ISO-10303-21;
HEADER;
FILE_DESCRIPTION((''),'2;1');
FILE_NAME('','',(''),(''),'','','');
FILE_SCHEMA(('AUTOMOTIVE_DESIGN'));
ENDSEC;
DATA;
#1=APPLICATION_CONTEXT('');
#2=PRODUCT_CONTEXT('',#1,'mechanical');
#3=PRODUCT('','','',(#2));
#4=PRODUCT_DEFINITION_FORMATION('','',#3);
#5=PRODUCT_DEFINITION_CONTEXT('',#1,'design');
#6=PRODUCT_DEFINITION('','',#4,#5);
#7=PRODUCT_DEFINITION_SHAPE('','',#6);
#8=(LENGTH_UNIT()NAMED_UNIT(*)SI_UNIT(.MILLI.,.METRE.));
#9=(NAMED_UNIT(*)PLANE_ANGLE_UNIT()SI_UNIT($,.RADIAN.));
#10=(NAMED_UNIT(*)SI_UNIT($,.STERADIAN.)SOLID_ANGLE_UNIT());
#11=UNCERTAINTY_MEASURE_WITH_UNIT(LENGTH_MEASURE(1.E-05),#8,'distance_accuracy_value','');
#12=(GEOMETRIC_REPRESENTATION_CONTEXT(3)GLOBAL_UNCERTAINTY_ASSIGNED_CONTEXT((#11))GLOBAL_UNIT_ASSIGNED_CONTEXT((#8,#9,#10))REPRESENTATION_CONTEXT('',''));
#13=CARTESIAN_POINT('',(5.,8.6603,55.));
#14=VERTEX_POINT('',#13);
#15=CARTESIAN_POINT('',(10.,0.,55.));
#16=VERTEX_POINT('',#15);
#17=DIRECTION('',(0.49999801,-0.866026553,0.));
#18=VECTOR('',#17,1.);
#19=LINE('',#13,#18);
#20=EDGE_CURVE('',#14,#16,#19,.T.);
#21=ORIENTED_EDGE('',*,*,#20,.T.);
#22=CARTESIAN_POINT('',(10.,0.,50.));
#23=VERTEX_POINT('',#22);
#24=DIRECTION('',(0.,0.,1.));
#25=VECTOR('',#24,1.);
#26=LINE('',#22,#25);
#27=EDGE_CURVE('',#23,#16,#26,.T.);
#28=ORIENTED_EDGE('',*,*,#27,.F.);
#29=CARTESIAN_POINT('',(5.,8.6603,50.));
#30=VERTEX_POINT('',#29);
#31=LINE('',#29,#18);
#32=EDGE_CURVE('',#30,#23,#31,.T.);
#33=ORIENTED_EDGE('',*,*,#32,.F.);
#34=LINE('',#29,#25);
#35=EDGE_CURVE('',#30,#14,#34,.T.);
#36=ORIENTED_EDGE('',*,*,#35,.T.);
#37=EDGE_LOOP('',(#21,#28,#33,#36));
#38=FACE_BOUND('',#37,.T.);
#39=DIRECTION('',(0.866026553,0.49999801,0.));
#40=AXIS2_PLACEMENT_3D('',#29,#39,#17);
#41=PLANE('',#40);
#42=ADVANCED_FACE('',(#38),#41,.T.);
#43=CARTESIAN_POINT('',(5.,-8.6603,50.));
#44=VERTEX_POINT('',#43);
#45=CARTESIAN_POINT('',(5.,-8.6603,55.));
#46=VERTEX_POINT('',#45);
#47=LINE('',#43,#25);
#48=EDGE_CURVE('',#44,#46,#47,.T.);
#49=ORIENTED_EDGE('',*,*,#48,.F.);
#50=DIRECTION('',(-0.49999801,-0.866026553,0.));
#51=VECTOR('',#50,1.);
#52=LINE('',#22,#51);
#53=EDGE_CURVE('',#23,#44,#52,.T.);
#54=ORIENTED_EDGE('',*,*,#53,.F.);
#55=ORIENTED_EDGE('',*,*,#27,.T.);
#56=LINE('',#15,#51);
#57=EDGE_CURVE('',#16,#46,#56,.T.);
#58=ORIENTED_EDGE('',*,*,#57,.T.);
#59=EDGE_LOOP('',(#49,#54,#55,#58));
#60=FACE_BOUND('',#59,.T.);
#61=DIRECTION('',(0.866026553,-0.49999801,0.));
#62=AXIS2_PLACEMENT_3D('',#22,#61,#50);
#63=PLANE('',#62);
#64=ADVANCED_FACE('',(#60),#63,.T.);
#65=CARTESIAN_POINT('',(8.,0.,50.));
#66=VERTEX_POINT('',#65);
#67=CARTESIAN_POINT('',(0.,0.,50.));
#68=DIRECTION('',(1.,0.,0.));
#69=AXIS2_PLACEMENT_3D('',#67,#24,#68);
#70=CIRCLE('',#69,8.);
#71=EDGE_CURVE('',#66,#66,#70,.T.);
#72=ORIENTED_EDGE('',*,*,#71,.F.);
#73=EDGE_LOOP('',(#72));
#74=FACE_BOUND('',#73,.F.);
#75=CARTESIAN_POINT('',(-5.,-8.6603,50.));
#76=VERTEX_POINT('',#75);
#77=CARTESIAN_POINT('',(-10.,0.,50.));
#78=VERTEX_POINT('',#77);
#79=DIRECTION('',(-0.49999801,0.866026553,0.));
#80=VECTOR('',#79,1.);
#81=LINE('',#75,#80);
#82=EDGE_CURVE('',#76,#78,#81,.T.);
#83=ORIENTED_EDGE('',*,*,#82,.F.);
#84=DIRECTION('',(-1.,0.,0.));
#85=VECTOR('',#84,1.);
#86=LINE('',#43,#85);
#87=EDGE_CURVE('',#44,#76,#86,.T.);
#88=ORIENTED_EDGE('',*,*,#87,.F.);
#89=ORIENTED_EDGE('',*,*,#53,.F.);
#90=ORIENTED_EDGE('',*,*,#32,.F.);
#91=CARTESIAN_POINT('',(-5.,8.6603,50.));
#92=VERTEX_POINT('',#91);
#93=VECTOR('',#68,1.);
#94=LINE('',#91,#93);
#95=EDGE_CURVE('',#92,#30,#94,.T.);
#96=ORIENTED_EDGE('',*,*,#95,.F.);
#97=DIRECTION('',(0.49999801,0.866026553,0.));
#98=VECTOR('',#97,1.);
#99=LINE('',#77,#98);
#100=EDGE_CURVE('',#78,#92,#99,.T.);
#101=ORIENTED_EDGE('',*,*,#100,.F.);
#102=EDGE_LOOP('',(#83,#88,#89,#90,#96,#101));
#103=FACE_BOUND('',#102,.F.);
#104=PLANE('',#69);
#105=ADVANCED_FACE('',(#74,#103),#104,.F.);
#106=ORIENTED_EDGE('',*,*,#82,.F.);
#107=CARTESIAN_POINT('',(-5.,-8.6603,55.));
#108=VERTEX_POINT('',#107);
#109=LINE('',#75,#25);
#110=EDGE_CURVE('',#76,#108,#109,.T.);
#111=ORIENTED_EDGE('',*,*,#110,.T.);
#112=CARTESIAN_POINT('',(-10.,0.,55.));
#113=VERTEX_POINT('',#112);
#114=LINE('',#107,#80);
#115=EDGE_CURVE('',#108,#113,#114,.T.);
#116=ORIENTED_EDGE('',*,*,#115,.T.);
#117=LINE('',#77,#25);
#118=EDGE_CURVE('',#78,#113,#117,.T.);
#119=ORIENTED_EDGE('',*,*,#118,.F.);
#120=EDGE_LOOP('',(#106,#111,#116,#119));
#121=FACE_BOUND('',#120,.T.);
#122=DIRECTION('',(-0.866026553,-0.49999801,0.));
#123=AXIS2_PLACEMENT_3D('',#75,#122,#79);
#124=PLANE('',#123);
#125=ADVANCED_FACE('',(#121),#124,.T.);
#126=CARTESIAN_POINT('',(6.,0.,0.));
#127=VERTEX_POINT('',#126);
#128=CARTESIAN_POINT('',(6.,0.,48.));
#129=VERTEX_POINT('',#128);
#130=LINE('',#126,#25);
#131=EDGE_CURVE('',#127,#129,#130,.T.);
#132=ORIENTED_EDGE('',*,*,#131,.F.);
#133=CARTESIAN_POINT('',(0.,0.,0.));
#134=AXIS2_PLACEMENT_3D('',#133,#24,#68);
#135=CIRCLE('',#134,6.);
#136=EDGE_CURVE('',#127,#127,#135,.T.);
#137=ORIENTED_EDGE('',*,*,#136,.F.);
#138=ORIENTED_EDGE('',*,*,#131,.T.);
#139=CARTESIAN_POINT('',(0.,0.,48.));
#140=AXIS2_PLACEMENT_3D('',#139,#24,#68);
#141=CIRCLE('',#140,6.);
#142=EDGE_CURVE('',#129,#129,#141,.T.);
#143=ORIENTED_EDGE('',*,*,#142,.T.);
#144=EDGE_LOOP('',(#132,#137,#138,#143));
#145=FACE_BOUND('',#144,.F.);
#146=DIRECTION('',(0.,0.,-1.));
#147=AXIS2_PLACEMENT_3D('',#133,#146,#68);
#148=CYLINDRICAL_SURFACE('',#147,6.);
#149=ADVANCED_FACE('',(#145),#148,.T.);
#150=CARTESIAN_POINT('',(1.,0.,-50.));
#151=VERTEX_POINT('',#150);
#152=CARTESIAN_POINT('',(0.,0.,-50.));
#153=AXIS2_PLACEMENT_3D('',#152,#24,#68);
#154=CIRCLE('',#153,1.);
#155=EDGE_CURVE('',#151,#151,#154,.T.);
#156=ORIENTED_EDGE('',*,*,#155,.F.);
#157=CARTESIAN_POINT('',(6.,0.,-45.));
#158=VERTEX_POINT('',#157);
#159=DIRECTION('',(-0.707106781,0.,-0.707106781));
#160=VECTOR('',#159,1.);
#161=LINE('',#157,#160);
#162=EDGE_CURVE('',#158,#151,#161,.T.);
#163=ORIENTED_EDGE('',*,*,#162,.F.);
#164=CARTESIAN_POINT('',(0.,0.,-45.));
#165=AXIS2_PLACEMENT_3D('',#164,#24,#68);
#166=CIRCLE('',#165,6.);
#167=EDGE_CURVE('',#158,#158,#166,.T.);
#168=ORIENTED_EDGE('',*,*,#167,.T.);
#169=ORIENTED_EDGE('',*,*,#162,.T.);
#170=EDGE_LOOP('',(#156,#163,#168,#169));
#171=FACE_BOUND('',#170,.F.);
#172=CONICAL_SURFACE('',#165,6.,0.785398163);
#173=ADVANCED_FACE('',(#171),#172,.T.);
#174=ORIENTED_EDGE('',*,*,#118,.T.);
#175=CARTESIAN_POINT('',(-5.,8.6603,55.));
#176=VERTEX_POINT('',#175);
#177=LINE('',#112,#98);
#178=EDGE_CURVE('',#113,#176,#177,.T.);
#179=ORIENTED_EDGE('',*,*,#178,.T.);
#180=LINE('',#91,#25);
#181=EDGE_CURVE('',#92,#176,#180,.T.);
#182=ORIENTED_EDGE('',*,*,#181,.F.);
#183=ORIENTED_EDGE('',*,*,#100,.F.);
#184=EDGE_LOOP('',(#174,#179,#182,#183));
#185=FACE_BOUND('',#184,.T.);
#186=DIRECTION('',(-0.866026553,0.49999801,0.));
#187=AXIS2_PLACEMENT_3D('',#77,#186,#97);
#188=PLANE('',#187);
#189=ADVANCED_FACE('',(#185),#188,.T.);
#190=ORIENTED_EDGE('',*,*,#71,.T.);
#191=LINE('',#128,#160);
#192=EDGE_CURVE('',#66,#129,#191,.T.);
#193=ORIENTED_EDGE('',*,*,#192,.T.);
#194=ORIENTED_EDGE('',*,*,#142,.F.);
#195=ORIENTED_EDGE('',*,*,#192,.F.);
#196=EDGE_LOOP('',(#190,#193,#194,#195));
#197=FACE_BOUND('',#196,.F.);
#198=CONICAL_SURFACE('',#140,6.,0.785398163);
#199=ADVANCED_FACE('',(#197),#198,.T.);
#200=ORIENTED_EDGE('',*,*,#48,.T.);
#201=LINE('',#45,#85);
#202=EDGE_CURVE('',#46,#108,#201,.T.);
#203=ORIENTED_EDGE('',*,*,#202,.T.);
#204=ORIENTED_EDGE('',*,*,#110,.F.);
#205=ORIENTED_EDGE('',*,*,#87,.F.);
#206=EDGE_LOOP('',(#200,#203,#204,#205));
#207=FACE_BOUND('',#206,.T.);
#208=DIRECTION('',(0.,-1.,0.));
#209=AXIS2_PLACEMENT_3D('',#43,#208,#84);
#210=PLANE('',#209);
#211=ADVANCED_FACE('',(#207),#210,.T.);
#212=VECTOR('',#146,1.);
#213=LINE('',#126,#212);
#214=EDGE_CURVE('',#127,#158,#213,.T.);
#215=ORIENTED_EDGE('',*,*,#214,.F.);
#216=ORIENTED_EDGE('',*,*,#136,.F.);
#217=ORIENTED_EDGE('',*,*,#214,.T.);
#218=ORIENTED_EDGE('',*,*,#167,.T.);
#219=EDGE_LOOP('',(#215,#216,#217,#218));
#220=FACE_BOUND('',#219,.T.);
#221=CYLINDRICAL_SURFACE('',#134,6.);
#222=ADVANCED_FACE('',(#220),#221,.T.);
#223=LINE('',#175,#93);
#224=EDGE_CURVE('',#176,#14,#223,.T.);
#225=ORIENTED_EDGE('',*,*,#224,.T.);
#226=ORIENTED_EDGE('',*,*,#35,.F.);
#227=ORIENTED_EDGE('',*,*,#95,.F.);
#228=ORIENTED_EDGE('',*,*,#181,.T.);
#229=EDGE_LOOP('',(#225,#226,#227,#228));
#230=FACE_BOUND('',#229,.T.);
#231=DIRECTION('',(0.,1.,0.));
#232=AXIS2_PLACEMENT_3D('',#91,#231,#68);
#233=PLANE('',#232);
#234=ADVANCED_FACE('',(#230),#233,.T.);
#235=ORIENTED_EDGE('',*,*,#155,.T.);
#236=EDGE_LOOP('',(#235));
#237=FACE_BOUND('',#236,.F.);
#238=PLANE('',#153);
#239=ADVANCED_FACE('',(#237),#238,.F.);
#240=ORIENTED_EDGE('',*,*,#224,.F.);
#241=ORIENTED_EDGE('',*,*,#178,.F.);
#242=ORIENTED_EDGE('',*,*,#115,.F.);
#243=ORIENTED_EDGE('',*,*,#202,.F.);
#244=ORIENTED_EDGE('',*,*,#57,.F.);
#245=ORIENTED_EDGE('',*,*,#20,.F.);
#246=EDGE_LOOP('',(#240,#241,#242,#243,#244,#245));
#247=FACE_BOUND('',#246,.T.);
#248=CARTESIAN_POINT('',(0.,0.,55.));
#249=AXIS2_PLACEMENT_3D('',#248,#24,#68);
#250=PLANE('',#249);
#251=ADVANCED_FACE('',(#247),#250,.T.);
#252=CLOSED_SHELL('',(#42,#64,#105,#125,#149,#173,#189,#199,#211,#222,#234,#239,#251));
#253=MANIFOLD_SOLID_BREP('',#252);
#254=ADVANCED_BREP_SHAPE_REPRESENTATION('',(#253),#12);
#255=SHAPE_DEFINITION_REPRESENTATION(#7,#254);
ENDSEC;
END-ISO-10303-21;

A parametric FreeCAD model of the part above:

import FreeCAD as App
import Part
import Sketcher
from FreeCAD import Vector


def edges_at(feature, points):
    """Names of the edges that pass closest to the given points."""
    edges = feature.Shape.Edges
    near = lambda p: min(range(len(edges)), key=lambda i: edges[i].distToShape(Part.Vertex(*p))[0])
    return sorted({f"Edge{near(p) + 1}" for p in points})


def add_polygon(sketch, points):
    """Adds a closed chain of lines whose ends are joined by coincident constraints."""
    first, n = sketch.GeometryCount, len(points)
    for a, b in zip(points, points[1:] + points[:1]):
        sketch.addGeometry(Part.LineSegment(App.Vector(*a, 0), App.Vector(*b, 0)), False)
    for i in range(n):
        sketch.addConstraint(Sketcher.Constraint("Coincident", first + i, 2, first + (i + 1) % n, 1))

doc = App.newDocument("Part")
params = doc.addObject("Spreadsheet::Sheet", "Params")
for row, (alias, value) in enumerate([
    ("sketch1_diameter", "12 mm"),
    ("pad1_length", "100 mm"),
    ("sketch2_width", "10 mm"),
    ("sketch2_length", "10 mm"),
    ("pad2_length", "5 mm"),
    ("chamfer_size", "2 mm"),
    ("chamfer2_size", "5 mm"),
], start=1):
    params.set(f"A{row}", alias)
    params.set(f"B{row}", "=" + value)
    params.setAlias(f"B{row}", alias)

body = doc.addObject("PartDesign::Body", "Body")

sketch1 = body.newObject("Sketcher::SketchObject", "Sketch")
sketch1.AttachmentSupport = (doc.getObject("XY_Plane"), [""])
sketch1.MapMode = "FlatFace"
sketch1.addGeometry(Part.Circle(Vector(0, 0, 0), Vector(0, 0, 1), 6), False)
sketch1.addConstraint(Sketcher.Constraint("Coincident", 0, 3, -1, 1))
sketch1.addConstraint(Sketcher.Constraint("Diameter", 0, 12.0))
sketch1.setExpression("Constraints[1]", "Params.sketch1_diameter")
pad1 = body.newObject("PartDesign::Pad", "Pad")
pad1.Profile = sketch1
pad1.setExpression("Length", "Params.pad1_length")
pad1.Midplane = True

sketch2 = body.newObject("Sketcher::SketchObject", "Sketch001")
sketch2.AttachmentSupport = (doc.getObject("XY_Plane"), [""])
sketch2.MapMode = "FlatFace"
sketch2.AttachmentOffset = App.Placement(Vector(0, 0, 50), App.Rotation())
add_polygon(sketch2, [(10, 0), (5, 9), (-5, 9), (-10, 0), (-5, -9), (5, -9)])
sketch2.addConstraint(Sketcher.Constraint("Horizontal", 1))
sketch2.addConstraint(Sketcher.Constraint("Horizontal", 4))
sketch2.addConstraint(Sketcher.Constraint("Symmetric", 0, 2, 3, 2, -1, 1))
sketch2.addConstraint(Sketcher.Constraint("Symmetric", 2, 2, 5, 2, -1, 1))
sketch2.addConstraint(Sketcher.Constraint("PointOnObject", 2, 2, -1))
sketch2.addConstraint(Sketcher.Constraint("Parallel", 2, 5))
sketch2.addConstraint(Sketcher.Constraint("Vertical", 1, 2, 3, 2))
sketch2.addConstraint(Sketcher.Constraint("DistanceX", 1, 2, 1, 1, 10.0))
sketch2.addConstraint(Sketcher.Constraint("Distance", 0, 10.0))
sketch2.addConstraint(Sketcher.Constraint("DistanceX", 2, 2, -1, 1, 10.0))
sketch2.setExpression("Constraints[13]", "Params.sketch2_width")
sketch2.setExpression("Constraints[14]", "Params.sketch2_length")
pad2 = body.newObject("PartDesign::Pad", "Pad001")
pad2.Profile = sketch2
pad2.setExpression("Length", "Params.pad2_length")
doc.recompute()

chamfer = body.newObject("PartDesign::Chamfer", "Chamfer")
chamfer.Base = (pad2, edges_at(pad2, [(-6, 0, 50)]))
chamfer.setExpression("Size", "Params.chamfer_size")
doc.recompute()

chamfer2 = body.newObject("PartDesign::Chamfer", "Chamfer001")
chamfer2.Base = (chamfer, edges_at(chamfer, [(-6, 0, -50)]))
chamfer2.setExpression("Size", "Params.chamfer2_size")

doc.recompute()
